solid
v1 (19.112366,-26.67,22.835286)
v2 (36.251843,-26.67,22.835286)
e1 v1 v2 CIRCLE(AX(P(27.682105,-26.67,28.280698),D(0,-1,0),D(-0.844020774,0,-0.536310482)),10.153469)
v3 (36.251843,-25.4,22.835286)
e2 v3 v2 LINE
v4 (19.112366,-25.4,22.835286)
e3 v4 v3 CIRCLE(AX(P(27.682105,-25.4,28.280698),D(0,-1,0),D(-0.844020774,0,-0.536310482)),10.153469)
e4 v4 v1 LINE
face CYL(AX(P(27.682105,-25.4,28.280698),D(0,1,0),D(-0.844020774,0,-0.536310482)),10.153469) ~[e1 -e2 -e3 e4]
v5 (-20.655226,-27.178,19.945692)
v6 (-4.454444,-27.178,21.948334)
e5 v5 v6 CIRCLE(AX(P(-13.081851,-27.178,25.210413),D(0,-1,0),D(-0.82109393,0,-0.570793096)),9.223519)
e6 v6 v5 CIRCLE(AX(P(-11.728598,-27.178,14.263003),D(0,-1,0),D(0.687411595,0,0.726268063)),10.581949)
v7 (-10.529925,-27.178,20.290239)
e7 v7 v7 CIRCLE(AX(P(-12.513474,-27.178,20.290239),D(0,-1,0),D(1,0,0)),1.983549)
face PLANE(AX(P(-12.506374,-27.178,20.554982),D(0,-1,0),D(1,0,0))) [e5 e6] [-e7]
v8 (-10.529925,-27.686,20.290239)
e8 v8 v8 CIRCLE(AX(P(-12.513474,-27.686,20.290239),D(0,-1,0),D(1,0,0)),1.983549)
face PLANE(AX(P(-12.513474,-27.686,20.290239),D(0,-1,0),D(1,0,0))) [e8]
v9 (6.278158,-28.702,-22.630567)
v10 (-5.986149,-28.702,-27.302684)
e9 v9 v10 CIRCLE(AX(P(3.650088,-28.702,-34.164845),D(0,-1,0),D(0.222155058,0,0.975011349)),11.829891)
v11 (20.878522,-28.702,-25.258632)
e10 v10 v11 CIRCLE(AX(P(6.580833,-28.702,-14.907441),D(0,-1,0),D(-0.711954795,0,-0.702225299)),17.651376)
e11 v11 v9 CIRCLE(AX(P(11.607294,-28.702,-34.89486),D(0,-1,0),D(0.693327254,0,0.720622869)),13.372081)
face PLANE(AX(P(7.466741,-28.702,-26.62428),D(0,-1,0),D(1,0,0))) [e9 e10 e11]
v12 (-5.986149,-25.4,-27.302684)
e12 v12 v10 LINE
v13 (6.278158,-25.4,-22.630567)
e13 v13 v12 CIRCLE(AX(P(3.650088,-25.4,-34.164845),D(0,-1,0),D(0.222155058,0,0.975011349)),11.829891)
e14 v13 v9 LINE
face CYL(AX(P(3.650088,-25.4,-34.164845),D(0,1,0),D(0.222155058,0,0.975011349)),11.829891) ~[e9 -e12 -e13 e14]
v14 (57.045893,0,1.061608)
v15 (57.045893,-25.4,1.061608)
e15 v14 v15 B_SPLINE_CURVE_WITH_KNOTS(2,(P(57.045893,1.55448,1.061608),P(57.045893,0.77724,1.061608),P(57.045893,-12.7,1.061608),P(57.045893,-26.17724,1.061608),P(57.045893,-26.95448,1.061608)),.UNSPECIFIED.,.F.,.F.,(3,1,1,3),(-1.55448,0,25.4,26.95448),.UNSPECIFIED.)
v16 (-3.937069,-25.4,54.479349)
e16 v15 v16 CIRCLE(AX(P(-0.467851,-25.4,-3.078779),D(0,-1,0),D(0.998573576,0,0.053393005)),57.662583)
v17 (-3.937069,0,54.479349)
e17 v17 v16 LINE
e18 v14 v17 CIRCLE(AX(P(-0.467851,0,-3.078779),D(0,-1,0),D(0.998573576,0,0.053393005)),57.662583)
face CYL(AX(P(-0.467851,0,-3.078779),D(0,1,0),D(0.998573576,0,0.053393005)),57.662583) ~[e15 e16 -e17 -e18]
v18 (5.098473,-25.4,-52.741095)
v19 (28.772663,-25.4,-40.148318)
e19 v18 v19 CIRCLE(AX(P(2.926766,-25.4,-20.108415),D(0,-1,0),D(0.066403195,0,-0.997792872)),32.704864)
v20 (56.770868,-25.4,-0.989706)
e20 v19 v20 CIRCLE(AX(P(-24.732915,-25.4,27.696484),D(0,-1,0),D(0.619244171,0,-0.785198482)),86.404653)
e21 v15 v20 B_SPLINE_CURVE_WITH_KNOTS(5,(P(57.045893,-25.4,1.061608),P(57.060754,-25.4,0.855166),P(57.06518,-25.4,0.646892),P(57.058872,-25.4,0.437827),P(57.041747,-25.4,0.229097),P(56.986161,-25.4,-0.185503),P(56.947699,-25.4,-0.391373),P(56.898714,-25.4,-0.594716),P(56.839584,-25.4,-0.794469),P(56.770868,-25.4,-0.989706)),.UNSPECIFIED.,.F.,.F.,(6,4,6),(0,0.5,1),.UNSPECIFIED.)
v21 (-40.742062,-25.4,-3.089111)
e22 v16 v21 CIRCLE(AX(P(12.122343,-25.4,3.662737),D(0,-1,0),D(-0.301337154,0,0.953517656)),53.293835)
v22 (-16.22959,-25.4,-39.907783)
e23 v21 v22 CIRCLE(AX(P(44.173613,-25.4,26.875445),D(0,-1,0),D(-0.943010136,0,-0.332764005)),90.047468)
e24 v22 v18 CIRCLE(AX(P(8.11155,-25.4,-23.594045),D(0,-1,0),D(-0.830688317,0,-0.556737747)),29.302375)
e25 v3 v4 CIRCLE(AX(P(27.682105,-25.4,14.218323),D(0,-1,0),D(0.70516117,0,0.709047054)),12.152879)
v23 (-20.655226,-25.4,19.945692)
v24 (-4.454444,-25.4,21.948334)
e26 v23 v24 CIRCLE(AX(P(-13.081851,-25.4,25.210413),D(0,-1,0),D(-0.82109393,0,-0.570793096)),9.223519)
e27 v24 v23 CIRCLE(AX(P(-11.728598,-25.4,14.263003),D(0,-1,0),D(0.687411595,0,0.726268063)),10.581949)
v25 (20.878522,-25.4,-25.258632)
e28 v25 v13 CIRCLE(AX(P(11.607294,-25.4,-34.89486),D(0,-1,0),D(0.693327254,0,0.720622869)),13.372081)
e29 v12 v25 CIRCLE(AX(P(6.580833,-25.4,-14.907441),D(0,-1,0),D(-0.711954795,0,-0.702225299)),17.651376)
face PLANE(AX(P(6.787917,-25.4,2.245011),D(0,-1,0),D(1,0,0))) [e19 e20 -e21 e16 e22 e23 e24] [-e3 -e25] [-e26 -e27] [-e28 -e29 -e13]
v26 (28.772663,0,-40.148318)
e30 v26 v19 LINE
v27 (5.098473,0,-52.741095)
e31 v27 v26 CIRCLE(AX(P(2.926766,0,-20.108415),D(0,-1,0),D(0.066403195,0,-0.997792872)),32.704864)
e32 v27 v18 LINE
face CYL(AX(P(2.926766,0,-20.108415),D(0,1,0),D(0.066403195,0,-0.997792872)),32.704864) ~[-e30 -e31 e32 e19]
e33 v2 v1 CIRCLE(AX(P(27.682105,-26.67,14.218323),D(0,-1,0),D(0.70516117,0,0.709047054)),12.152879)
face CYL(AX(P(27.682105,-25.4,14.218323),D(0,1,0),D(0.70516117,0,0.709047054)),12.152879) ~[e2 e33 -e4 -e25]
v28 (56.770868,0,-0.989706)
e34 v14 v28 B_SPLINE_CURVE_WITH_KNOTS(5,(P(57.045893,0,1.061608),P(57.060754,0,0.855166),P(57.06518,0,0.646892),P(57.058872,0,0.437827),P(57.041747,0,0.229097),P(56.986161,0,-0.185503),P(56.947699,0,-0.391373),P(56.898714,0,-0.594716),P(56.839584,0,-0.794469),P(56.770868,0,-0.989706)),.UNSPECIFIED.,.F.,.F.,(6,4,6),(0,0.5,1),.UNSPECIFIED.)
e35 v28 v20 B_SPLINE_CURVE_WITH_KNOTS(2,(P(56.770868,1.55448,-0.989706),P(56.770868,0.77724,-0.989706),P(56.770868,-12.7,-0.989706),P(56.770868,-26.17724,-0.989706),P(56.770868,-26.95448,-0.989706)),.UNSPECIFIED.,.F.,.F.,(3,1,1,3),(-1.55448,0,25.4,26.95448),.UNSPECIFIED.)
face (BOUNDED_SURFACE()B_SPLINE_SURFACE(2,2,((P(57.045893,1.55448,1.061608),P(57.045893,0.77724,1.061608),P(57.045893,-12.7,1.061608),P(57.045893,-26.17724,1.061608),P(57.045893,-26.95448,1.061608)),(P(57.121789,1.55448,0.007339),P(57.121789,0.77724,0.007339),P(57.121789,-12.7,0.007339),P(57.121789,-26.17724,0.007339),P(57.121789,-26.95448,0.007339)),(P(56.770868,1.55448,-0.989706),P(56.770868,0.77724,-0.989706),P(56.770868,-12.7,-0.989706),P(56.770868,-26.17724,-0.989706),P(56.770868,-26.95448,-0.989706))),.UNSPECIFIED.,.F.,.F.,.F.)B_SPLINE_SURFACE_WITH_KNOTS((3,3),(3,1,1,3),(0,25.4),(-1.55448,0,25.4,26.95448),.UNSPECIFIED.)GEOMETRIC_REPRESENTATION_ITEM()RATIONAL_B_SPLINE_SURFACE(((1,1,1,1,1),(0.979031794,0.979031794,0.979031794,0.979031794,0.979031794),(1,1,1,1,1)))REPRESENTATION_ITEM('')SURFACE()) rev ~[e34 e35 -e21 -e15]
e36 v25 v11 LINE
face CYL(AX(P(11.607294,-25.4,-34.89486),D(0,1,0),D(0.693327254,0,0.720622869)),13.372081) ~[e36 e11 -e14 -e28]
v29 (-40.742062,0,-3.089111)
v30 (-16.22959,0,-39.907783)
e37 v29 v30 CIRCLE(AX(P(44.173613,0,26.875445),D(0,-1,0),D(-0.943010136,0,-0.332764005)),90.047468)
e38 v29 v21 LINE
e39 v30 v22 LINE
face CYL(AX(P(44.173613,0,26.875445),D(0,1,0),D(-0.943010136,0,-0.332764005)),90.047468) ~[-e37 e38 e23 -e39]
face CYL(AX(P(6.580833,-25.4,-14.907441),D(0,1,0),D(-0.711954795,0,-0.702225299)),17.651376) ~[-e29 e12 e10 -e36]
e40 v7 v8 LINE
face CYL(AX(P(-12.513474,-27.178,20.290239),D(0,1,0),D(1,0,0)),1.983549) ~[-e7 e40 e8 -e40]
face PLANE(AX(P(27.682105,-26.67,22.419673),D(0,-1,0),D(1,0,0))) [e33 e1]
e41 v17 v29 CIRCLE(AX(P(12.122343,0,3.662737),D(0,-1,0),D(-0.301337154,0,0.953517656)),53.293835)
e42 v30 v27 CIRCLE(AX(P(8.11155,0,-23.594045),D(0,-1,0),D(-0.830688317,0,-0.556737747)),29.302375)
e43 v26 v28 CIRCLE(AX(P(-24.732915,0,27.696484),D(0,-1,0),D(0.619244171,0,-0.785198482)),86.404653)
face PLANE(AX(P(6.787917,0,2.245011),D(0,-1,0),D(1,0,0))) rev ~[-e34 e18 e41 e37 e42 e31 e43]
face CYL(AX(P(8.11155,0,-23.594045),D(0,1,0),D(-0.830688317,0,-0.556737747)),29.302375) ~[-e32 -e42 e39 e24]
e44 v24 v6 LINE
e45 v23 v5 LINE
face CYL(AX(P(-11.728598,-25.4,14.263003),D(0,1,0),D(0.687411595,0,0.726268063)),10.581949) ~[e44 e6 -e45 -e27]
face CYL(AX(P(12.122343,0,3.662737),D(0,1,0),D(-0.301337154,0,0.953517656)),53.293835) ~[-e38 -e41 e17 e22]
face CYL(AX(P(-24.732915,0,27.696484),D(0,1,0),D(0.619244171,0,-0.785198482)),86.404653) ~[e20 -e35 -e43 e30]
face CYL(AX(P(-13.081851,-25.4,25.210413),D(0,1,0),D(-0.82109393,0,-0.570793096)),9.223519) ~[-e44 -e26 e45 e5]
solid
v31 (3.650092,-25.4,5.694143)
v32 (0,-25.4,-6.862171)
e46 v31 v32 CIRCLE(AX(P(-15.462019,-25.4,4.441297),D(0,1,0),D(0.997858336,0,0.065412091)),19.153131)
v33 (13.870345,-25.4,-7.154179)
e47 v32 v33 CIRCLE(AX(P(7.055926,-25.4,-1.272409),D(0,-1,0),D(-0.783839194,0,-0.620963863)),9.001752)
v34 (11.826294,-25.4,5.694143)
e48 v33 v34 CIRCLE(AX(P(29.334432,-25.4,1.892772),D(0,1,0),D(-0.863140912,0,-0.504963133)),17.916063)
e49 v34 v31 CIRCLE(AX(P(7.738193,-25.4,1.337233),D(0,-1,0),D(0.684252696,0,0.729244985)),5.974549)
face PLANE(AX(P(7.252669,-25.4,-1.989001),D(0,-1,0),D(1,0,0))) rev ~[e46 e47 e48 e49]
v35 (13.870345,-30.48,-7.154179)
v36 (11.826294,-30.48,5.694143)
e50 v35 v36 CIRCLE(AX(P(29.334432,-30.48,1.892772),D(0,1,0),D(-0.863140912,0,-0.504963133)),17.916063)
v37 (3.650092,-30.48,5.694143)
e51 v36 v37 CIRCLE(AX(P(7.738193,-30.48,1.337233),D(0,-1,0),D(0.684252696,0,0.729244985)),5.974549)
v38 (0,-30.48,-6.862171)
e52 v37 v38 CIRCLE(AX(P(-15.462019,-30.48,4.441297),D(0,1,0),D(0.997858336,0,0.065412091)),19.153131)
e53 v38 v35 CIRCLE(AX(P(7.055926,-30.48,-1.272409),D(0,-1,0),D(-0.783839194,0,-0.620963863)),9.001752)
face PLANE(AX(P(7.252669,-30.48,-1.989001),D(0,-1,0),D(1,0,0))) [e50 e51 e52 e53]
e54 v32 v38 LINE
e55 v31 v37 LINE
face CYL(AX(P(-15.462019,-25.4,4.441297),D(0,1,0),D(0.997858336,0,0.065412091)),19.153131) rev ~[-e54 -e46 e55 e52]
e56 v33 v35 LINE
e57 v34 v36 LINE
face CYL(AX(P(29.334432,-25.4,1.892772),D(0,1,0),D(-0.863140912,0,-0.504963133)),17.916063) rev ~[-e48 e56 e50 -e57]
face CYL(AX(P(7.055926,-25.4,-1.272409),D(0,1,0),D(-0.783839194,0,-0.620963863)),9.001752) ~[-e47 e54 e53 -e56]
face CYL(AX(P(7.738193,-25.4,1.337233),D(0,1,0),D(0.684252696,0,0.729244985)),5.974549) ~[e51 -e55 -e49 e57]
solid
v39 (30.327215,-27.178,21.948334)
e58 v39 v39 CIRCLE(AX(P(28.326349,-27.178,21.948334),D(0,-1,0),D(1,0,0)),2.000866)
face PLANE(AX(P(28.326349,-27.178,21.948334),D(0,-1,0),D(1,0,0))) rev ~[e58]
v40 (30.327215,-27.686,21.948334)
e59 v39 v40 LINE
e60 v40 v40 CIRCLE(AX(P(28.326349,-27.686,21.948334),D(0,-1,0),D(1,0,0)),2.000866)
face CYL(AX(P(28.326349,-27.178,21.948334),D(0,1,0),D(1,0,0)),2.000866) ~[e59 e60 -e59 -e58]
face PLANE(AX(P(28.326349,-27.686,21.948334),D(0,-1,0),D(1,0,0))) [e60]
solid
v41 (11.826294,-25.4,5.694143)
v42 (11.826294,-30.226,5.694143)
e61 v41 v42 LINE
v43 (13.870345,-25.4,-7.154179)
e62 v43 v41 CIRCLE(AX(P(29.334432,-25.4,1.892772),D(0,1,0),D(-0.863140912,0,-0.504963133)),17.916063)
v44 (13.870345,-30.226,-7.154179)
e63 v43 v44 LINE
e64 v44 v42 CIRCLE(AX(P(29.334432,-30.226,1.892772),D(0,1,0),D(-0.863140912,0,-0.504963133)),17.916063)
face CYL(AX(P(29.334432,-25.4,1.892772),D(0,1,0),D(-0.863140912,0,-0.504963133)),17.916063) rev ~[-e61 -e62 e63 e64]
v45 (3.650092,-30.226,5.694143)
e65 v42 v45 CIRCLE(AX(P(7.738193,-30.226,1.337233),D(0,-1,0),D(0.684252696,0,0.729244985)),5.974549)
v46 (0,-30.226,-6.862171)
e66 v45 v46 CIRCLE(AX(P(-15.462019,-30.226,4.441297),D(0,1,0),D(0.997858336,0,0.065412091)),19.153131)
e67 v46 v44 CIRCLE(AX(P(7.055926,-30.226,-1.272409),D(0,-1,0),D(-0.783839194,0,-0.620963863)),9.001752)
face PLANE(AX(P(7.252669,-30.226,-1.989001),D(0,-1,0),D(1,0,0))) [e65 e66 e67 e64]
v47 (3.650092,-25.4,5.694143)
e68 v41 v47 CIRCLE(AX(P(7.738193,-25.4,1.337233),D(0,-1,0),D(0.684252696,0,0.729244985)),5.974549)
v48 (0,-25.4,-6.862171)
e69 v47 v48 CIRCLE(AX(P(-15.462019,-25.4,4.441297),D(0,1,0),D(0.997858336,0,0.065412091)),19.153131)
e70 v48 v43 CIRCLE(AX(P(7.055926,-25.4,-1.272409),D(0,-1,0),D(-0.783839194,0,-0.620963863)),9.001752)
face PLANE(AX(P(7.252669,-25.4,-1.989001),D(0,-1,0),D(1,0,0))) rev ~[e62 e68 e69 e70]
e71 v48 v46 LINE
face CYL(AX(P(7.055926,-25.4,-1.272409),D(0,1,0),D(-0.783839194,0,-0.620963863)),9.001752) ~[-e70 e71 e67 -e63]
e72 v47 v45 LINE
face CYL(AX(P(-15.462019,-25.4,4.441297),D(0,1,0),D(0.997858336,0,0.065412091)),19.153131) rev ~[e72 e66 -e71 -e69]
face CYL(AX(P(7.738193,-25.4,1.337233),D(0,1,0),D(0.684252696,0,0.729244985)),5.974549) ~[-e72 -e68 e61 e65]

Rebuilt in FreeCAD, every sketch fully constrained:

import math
import FreeCAD as App
import Part
import Sketcher
Q = App.Units.Quantity


def edges_at(feature, points):
    """Names of the edges that pass closest to the given points."""
    edges = feature.Shape.Edges
    near = lambda p: min(range(len(edges)), key=lambda i: edges[i].distToShape(Part.Vertex(*p))[0])
    return sorted({f"Edge{near(p) + 1}" for p in points})

doc = App.newDocument("Part")
body = doc.addObject("PartDesign::Body", "Body")
body.AllowCompound = True

# Sketch on XZ plane
sketch1 = body.newObject("Sketcher::SketchObject", "Sketch")
sketch1.AttachmentSupport = (doc.getObject("XZ_Plane"), [""])
sketch1.MapMode = "FlatFace"
sketch1.addGeometry([
    Part.ArcOfCircle(Part.Circle(App.Vector(0, -3, 0), App.Vector(0, 0, 1), 58), math.radians(3), math.radians(93)),  # 0
    Part.ArcOfCircle(Part.Circle(App.Vector(12, 4, 0), App.Vector(0, 0, 1), 53), math.radians(108), math.radians(187)),  # 1
    Part.ArcOfCircle(Part.Circle(App.Vector(44, 27, 0), App.Vector(0, 0, 1), 90), math.radians(-161), math.radians(-132)),  # 2
    Part.ArcOfCircle(Part.Circle(App.Vector(8, -24, 0), App.Vector(0, 0, 1), 29), math.radians(-146), math.radians(-96)),  # 3
    Part.ArcOfCircle(Part.Circle(App.Vector(3, -20, 0), App.Vector(0, 0, 1), 33), math.radians(-86), math.radians(-38)),  # 4
    Part.ArcOfCircle(Part.Circle(App.Vector(-25, 28, 0), App.Vector(0, 0, 1), 86), math.radians(-52), math.radians(-19)),  # 5
], False)
sketch1.addConstraint([
    Sketcher.Constraint("Coincident", 0, 2, 1, 1),
    Sketcher.Constraint("Coincident", 1, 2, 2, 1),
    Sketcher.Constraint("Coincident", 2, 2, 3, 1),
    Sketcher.Constraint("Coincident", 3, 2, 4, 1),
    Sketcher.Constraint("Coincident", 4, 2, 5, 1),
    Sketcher.Constraint("Coincident", 5, 2, 0, 1),
    Sketcher.Constraint("PointOnObject", 5, 2, -1),
    Sketcher.Constraint("Radius", 2, Q("90.047468 mm")),
    Sketcher.Constraint("Radius", 0, Q("57.662583 mm")),
    Sketcher.Constraint("Radius", 1, Q("53.293835 mm")),
    Sketcher.Constraint("Radius", 3, Q("29.302375 mm")),
    Sketcher.Constraint("Radius", 4, Q("32.704864 mm")),
    Sketcher.Constraint("Radius", 5, Q("86.404653 mm")),
    Sketcher.Constraint("DistanceY", 0, 3, 2, 3, Q("1.1793001 in")),
    Sketcher.Constraint("DistanceX", 0, 3, 3, 3, Q("8.579401 mm")),
    Sketcher.Constraint("DistanceY", 4, 3, 5, 3, Q("47.804899 mm")),
    Sketcher.Constraint("DistanceX", 0, 3, -1, 1, Q("0.467851 mm")),
    Sketcher.Constraint("DistanceY", 0, 3, -1, 1, Q("3.078779 mm")),
    Sketcher.Constraint("DistanceX", 0, 2, -1, 1, Q("3.937069 mm")),
    Sketcher.Constraint("DistanceX", 1, 2, -1, 1, Q("40.742062 mm")),
    Sketcher.Constraint("DistanceY", 1, 2, -1, 1, Q("3.089111 mm")),
    Sketcher.Constraint("DistanceX", 2, 2, -1, 1, Q("16.22959 mm")),
    Sketcher.Constraint("DistanceY", 4, 2, -1, 1, Q("40.148318 mm")),
    Sketcher.Constraint("DistanceY", 3, 3, 4, 3, Q("3.48563 mm")),
])
pad1 = body.newObject("PartDesign::Pad", "Pad")
pad1.Profile = sketch1
pad1.Length = Q("1 in")
doc.recompute()

fillet = body.newObject("PartDesign::Fillet", "Fillet")
fillet.Base = (pad1, edges_at(pad1, [(57.112, -12.7, 0)]))
fillet.Radius = Q("0.2 in")

# Sketch on XZ plane
sketch2 = body.newObject("Sketcher::SketchObject", "Sketch001")
sketch2.AttachmentSupport = (doc.getObject("XZ_Plane"), [""])
sketch2.MapMode = "FlatFace"
sketch2.AttachmentOffset = App.Placement(App.Vector(0, 0, 1 * 25.4), App.Rotation())
sketch2.addGeometry([
    Part.ArcOfCircle(Part.Circle(App.Vector(-13, 25, 0), App.Vector(0, 0, 1), 9), math.radians(-145), math.radians(-21)),
    Part.ArcOfCircle(Part.Circle(App.Vector(-12, 14, 0), App.Vector(0, 0, 1), 11), math.radians(47), math.radians(148)),
], False)
sketch2.addConstraint([
    Sketcher.Constraint("Coincident", 0, 1, 1, 2),
    Sketcher.Constraint("Coincident", 1, 1, 0, 2),
    Sketcher.Constraint("Radius", 0, Q("9.223519 mm")),
    Sketcher.Constraint("Radius", 1, Q("10.581949 mm")),
    Sketcher.Constraint("DistanceX", 1, 3, -1, 1, Q("11.728598 mm")),
    Sketcher.Constraint("DistanceX", 0, 3, -1, 1, Q("13.081851 mm")),
    Sketcher.Constraint("DistanceY", -1, 1, 0, 1, Q("19.945692 mm")),
    Sketcher.Constraint("DistanceY", 1, 3, 0, 3, Q("10.94741 mm")),
])
pad2 = body.newObject("PartDesign::Pad", "Pad001")
pad2.Profile = sketch2
pad2.Length = Q("0.07 in")

# Sketch on XZ plane
sketch3 = body.newObject("Sketcher::SketchObject", "Sketch002")
sketch3.AttachmentSupport = (doc.getObject("XZ_Plane"), [""])
sketch3.MapMode = "FlatFace"
sketch3.AttachmentOffset = App.Placement(App.Vector(0, 0, 1 * 25.4), App.Rotation())
sketch3.addGeometry([
    Part.ArcOfCircle(Part.Circle(App.Vector(28, 28, 0), App.Vector(0, 0, 1), 10), math.radians(-148), math.radians(-32)),
    Part.ArcOfCircle(Part.Circle(App.Vector(28, 14, 0), App.Vector(0, 0, 1), 12), math.radians(45), math.radians(135)),
], False)
sketch3.addConstraint([
    Sketcher.Constraint("Coincident", 0, 1, 1, 2),
    Sketcher.Constraint("Coincident", 1, 1, 0, 2),
    Sketcher.Constraint("Horizontal", 0, 1, 1, 1),
    Sketcher.Constraint("Radius", 0, Q("10.153469 mm")),
    Sketcher.Constraint("Radius", 1, Q("12.152879 mm")),
    Sketcher.Constraint("DistanceX", 0, 1, 0, 3, Q("8.569738 mm")),
    Sketcher.Constraint("DistanceX", -1, 1, 0, 3, Q("27.682105 mm")),
    Sketcher.Constraint("DistanceY", -1, 1, 0, 3, Q("28.280698 mm")),
])
pad3 = body.newObject("PartDesign::Pad", "Pad002")
pad3.Profile = sketch3
pad3.Length = Q("0.05 in")

# Sketch on XZ plane
sketch4 = body.newObject("Sketcher::SketchObject", "Sketch003")
sketch4.AttachmentSupport = (doc.getObject("XZ_Plane"), [""])
sketch4.MapMode = "FlatFace"
sketch4.AttachmentOffset = App.Placement(App.Vector(0, 0, 1.07 * 25.4), App.Rotation())
sketch4.addGeometry([
    Part.Circle(App.Vector(-12.5, 20.3, 0), App.Vector(0, 0, 1), 2),
    Part.Circle(App.Vector(28.3, 21.9, 0), App.Vector(0, 0, 1), 2),
], False)
sketch4.addConstraint([
    Sketcher.Constraint("Diameter", 0, Q("3.967098 mm")),
    Sketcher.Constraint("Diameter", 1, Q("4.001732 mm")),
    Sketcher.Constraint("DistanceY", -1, 1, 0, 3, Q("20.290239 mm")),
    Sketcher.Constraint("DistanceX", -1, 1, 1, 3, Q("28.326349 mm")),
    Sketcher.Constraint("DistanceX", 0, 3, -1, 1, Q("12.513474 mm")),
    Sketcher.Constraint("DistanceY", -1, 1, 1, 3, Q("21.948334 mm")),
])
pad4 = body.newObject("PartDesign::Pad", "Pad003")
pad4.Profile = sketch4
pad4.Length = Q("0.02 in")

# Sketch on XZ plane
sketch5 = body.newObject("Sketcher::SketchObject", "Sketch004")
sketch5.AttachmentSupport = (doc.getObject("XZ_Plane"), [""])
sketch5.MapMode = "FlatFace"
sketch5.AttachmentOffset = App.Placement(App.Vector(0, 0, 1 * 25.4), App.Rotation())
sketch5.addGeometry([
    Part.ArcOfCircle(Part.Circle(App.Vector(12, -35, 0), App.Vector(0, 0, 1), 13), math.radians(46), math.radians(113)),
    Part.ArcOfCircle(Part.Circle(App.Vector(4, -34, 0), App.Vector(0, 0, 1), 12), math.radians(77), math.radians(145)),
    Part.ArcOfCircle(Part.Circle(App.Vector(7, -15, 0), App.Vector(0, 0, 1), 18), math.radians(-135), math.radians(-36)),
], False)
sketch5.addConstraint([
    Sketcher.Constraint("Coincident", 0, 2, 1, 1),
    Sketcher.Constraint("Coincident", 1, 2, 2, 1),
    Sketcher.Constraint("Coincident", 2, 2, 0, 1),
    Sketcher.Constraint("Radius", 0, Q("13.372081 mm")),
    Sketcher.Constraint("Radius", 1, Q("11.829891 mm")),
    Sketcher.Constraint("Radius", 2, Q("17.651376 mm")),
    Sketcher.Constraint("DistanceY", 0, 3, -1, 1, Q("34.89486 mm")),
    Sketcher.Constraint("DistanceY", 2, 3, -1, 1, Q("14.907441 mm")),
    Sketcher.Constraint("DistanceX", -1, 1, 0, 2, Q("6.278158 mm")),
    Sketcher.Constraint("DistanceX", 1, 2, -1, 1, Q("5.986149 mm")),
    Sketcher.Constraint("DistanceX", -1, 1, 2, 2, Q("20.878522 mm")),
    Sketcher.Constraint("DistanceY", 2, 2, -1, 1, Q("25.258632 mm")),
])
pad5 = body.newObject("PartDesign::Pad", "Pad004")
pad5.Profile = sketch5
pad5.Length = Q("0.13 in")
body2 = doc.addObject("PartDesign::Body", "Body001")

# Sketch on XZ plane
sketch6 = body2.newObject("Sketcher::SketchObject", "Sketch005")
sketch6.AttachmentSupport = (doc.getObject("XZ_Plane001"), [""])
sketch6.MapMode = "FlatFace"
sketch6.AttachmentOffset = App.Placement(App.Vector(0, 0, 1 * 25.4), App.Rotation())
sketch6.addGeometry([
    Part.ArcOfCircle(Part.Circle(App.Vector(-15, 4, 0), App.Vector(0, 0, 1), 19), math.radians(-36), math.radians(4)),
    Part.ArcOfCircle(Part.Circle(App.Vector(7, -1, 0), App.Vector(0, 0, 1), 9), math.radians(-142), math.radians(-41)),
    Part.ArcOfCircle(Part.Circle(App.Vector(29, 2, 0), App.Vector(0, 0, 1), 18), math.radians(168), math.radians(210)),
    Part.ArcOfCircle(Part.Circle(App.Vector(8, 1, 0), App.Vector(0, 0, 1), 6), math.radians(47), math.radians(133)),
], False)
sketch6.addConstraint([
    Sketcher.Constraint("Coincident", 0, 1, 1, 1),
    Sketcher.Constraint("Coincident", 1, 2, 2, 2),
    Sketcher.Constraint("Coincident", 2, 1, 3, 1),
    Sketcher.Constraint("Coincident", 3, 2, 0, 2),
    Sketcher.Constraint("PointOnObject", 0, 1, -2),
    Sketcher.Constraint("Horizontal", 2, 1, 3, 2),
    Sketcher.Constraint("Radius", 0, Q("19.153131 mm")),
    Sketcher.Constraint("Radius", 1, Q("9.001752 mm")),
    Sketcher.Constraint("Radius", 3, Q("5.974549 mm")),
    Sketcher.Constraint("Radius", 2, Q("17.916063 mm")),
    Sketcher.Constraint("DistanceX", 3, 3, 2, 1, Q("4.088101 mm")),
    Sketcher.Constraint("DistanceX", 0, 3, -1, 1, Q("15.462019 mm")),
    Sketcher.Constraint("DistanceY", 1, 3, -1, 1, Q("1.272409 mm")),
    Sketcher.Constraint("DistanceY", 0, 1, -1, 1, Q("6.862171 mm")),
    Sketcher.Constraint("DistanceY", 1, 2, -1, 1, Q("7.154179 mm")),
    Sketcher.Constraint("DistanceY", 1, 3, 2, 3, Q("3.165181 mm")),
])
pad6 = body2.newObject("PartDesign::Pad", "Pad005")
pad6.Profile = sketch6
pad6.Length = Q("0.19 in")
body3 = doc.addObject("PartDesign::Body", "Body002")

# Sketch on XZ plane
sketch7 = body3.newObject("Sketcher::SketchObject", "Sketch006")
sketch7.AttachmentSupport = (doc.getObject("XZ_Plane002"), [""])
sketch7.MapMode = "FlatFace"
sketch7.AttachmentOffset = App.Placement(App.Vector(0, 0, 1 * 25.4), App.Rotation())
sketch7.addGeometry([
    Part.ArcOfCircle(Part.Circle(App.Vector(-15, 4, 0), App.Vector(0, 0, 1), 19), math.radians(-36), math.radians(4)),
    Part.ArcOfCircle(Part.Circle(App.Vector(7, -1, 0), App.Vector(0, 0, 1), 9), math.radians(-142), math.radians(-41)),
    Part.ArcOfCircle(Part.Circle(App.Vector(29, 2, 0), App.Vector(0, 0, 1), 18), math.radians(168), math.radians(210)),
    Part.ArcOfCircle(Part.Circle(App.Vector(8, 1, 0), App.Vector(0, 0, 1), 6), math.radians(47), math.radians(133)),
], False)
sketch7.addConstraint([
    Sketcher.Constraint("Coincident", 0, 1, 1, 1),
    Sketcher.Constraint("Coincident", 1, 2, 2, 2),
    Sketcher.Constraint("Coincident", 2, 1, 3, 1),
    Sketcher.Constraint("Coincident", 3, 2, 0, 2),
    Sketcher.Constraint("PointOnObject", 0, 1, -2),
    Sketcher.Constraint("Horizontal", 2, 1, 3, 2),
    Sketcher.Constraint("Radius", 0, Q("19.153131 mm")),
    Sketcher.Constraint("Radius", 1, Q("9.001752 mm")),
    Sketcher.Constraint("Radius", 3, Q("5.974549 mm")),
    Sketcher.Constraint("Radius", 2, Q("17.916063 mm")),
    Sketcher.Constraint("DistanceX", 3, 3, 2, 1, Q("4.088101 mm")),
    Sketcher.Constraint("DistanceX", 0, 3, -1, 1, Q("15.462019 mm")),
    Sketcher.Constraint("DistanceY", 1, 3, -1, 1, Q("1.272409 mm")),
    Sketcher.Constraint("DistanceY", 0, 1, -1, 1, Q("6.862171 mm")),
    Sketcher.Constraint("DistanceY", 1, 2, -1, 1, Q("7.154179 mm")),
    Sketcher.Constraint("DistanceY", 1, 3, 2, 3, Q("3.165181 mm")),
])
pad7 = body3.newObject("PartDesign::Pad", "Pad006")
pad7.Profile = sketch7
pad7.Length = Q("0.2 in")

doc.recompute()
